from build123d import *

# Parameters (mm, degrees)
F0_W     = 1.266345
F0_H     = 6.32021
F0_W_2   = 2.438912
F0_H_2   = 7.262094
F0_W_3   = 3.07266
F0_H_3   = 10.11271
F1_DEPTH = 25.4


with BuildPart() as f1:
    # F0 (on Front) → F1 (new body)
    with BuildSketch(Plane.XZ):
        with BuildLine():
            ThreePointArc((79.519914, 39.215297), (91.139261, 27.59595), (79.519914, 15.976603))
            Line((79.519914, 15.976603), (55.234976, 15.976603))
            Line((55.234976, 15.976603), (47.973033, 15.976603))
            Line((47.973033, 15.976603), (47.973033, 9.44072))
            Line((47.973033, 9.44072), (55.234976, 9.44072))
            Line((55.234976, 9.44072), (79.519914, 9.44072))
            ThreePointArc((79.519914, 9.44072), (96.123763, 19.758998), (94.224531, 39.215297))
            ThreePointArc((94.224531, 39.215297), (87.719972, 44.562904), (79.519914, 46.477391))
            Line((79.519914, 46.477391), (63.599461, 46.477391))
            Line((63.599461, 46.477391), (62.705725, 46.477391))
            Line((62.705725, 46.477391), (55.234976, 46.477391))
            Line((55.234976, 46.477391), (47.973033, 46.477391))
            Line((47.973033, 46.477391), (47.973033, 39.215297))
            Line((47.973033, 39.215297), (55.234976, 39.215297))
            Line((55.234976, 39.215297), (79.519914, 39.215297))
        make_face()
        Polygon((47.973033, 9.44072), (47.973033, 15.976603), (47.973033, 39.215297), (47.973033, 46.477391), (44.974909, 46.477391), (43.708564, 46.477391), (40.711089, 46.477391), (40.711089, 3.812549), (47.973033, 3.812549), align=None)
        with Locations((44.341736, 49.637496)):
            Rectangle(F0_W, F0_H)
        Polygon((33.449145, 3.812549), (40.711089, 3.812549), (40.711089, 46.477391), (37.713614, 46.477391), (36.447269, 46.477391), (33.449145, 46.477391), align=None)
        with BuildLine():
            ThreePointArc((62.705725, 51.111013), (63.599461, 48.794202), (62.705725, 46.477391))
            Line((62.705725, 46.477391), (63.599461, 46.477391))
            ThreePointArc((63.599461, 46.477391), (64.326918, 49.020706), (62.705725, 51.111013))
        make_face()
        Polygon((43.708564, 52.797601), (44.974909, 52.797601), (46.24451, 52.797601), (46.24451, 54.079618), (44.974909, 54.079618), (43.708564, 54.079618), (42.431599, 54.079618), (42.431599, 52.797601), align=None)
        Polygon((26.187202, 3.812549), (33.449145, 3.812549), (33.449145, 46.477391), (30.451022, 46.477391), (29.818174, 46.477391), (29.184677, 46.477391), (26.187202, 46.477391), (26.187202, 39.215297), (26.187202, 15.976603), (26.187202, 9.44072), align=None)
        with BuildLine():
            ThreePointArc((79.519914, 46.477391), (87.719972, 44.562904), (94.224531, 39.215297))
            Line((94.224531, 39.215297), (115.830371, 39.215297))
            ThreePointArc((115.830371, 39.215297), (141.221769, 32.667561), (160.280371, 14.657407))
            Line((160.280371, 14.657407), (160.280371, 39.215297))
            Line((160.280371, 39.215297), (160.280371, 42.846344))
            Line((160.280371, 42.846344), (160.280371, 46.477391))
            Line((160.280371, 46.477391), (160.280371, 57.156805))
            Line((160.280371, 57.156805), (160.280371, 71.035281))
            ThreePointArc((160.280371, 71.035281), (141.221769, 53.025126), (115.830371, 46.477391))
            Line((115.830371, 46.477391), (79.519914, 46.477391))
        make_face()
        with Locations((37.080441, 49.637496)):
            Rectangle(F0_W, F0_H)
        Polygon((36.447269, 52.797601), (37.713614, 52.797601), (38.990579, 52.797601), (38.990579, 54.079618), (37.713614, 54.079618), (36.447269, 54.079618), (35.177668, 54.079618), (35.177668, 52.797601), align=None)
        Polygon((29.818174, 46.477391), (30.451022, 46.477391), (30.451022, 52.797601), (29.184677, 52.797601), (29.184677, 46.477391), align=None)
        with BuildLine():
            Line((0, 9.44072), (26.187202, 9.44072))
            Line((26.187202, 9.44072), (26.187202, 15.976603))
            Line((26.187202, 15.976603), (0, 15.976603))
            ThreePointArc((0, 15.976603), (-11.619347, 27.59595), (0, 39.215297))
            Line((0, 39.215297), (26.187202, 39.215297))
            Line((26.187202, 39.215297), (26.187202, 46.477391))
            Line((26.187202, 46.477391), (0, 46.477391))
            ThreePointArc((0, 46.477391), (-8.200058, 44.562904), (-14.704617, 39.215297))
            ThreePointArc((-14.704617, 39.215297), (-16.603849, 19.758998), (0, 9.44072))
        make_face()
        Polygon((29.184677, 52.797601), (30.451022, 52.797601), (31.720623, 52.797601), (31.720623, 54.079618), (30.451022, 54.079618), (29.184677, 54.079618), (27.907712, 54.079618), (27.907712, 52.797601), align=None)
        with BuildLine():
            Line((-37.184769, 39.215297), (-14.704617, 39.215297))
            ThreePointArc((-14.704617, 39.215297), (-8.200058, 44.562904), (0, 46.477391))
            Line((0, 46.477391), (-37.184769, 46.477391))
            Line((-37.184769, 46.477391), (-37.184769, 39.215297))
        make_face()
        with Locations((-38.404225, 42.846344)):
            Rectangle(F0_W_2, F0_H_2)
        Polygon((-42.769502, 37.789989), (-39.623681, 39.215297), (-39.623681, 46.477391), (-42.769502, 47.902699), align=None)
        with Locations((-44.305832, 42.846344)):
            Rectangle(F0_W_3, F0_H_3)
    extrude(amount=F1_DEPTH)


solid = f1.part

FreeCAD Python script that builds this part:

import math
import FreeCAD as App
import Part
import Sketcher

V = App.Vector
Q = App.Units.Quantity

doc = App.newDocument("Part")
body = doc.addObject("PartDesign::Body", "Body")

sketch1 = body.newObject("Sketcher::SketchObject", "Sketch")
sketch1.AttachmentSupport = (doc.getObject("XZ_Plane"), [""])
sketch1.MapMode = "FlatFace"
sketch1.addGeometry([
    Part.LineSegment(V(47.973033, 9.44072, 0), V(79.519914, 9.44072, 0)),
    Part.ArcOfCircle(Part.Circle(V(79.519914, 27.959055, 0), V(0, 0, 1), 18.518335), math.radians(-90), math.radians(37.433706)),
    Part.LineSegment(V(94.224531, 39.215297, 0), V(115.830371, 39.215297, 0)),
    Part.ArcOfCircle(Part.Circle(V(115.830369, -13.291101, 0), V(0, 0, 1), 52.506398), math.radians(32.160154), math.radians(89.999997)),
    Part.LineSegment(V(160.280371, 14.657407, 0), V(160.280371, 71.035281, 0)),
    Part.ArcOfCircle(Part.Circle(V(115.830372, 98.983782, 0), V(0, 0, 1), 52.506391), math.radians(-90.000001), math.radians(-32.16015)),
    Part.LineSegment(V(115.830371, 46.477391, 0), V(63.599461, 46.477391, 0)),
    Part.ArcOfCircle(Part.Circle(V(61.454352, 48.466644, 0), V(0, 0, 1), 2.925512), math.radians(-42.841099), math.radians(64.67546)),
    Part.ArcOfCircle(Part.Circle(V(60.149685, 48.794202, 0), V(0, 0, 1), 3.449776), math.radians(-42.189368), math.radians(42.189368)),
    Part.LineSegment(V(62.705725, 46.477391, 0), V(44.974908, 46.477391, 0)),
    Part.LineSegment(V(44.974908, 46.477391, 0), V(44.974908, 52.797601, 0)),
    Part.LineSegment(V(44.974908, 52.797601, 0), V(46.24451, 52.797601, 0)),
    Part.LineSegment(V(46.24451, 52.797601, 0), V(46.24451, 54.079618, 0)),
    Part.LineSegment(V(46.24451, 54.079618, 0), V(42.431599, 54.079618, 0)),
    Part.LineSegment(V(42.431599, 54.079618, 0), V(42.431599, 52.797601, 0)),
    Part.LineSegment(V(42.431599, 52.797601, 0), V(43.708563, 52.797601, 0)),
    Part.LineSegment(V(43.708563, 52.797601, 0), V(43.708563, 46.477391, 0)),
    Part.LineSegment(V(43.708563, 46.477391, 0), V(37.713614, 46.477391, 0)),
    Part.LineSegment(V(37.713614, 46.477391, 0), V(37.713614, 52.797601, 0)),
    Part.LineSegment(V(37.713614, 52.797601, 0), V(38.990579, 52.797601, 0)),
    Part.LineSegment(V(38.990579, 52.797601, 0), V(38.990579, 54.079618, 0)),
    Part.LineSegment(V(38.990579, 54.079618, 0), V(35.177668, 54.079618, 0)),
    Part.LineSegment(V(35.177668, 54.079618, 0), V(35.177668, 52.797601, 0)),
    Part.LineSegment(V(35.177668, 52.797601, 0), V(36.447268, 52.797601, 0)),
    Part.LineSegment(V(36.447268, 52.797601, 0), V(36.447268, 46.477391, 0)),
    Part.LineSegment(V(36.447268, 46.477391, 0), V(30.451022, 46.477391, 0)),
    Part.LineSegment(V(30.451022, 46.477391, 0), V(30.451022, 52.797601, 0)),
    Part.LineSegment(V(30.451022, 52.797601, 0), V(31.720623, 52.797601, 0)),
    Part.LineSegment(V(31.720623, 52.797601, 0), V(31.720623, 54.079618, 0)),
    Part.LineSegment(V(31.720623, 54.079618, 0), V(27.907712, 54.079618, 0)),
    Part.LineSegment(V(27.907712, 54.079618, 0), V(27.907712, 52.797601, 0)),
    Part.LineSegment(V(27.907712, 52.797601, 0), V(29.184677, 52.797601, 0)),
    Part.LineSegment(V(29.184677, 52.797601, 0), V(29.184677, 46.477391, 0)),
    Part.LineSegment(V(29.184677, 46.477391, 0), V(-39.623681, 46.477391, 0)),
    Part.LineSegment(V(-39.623681, 46.477391, 0), V(-42.769502, 47.902699, 0)),
    Part.LineSegment(V(-42.769502, 47.902699, 0), V(-45.842162, 47.902699, 0)),
    Part.LineSegment(V(-45.842162, 47.902699, 0), V(-45.842162, 37.789989, 0)),
    Part.LineSegment(V(-45.842162, 37.789989, 0), V(-42.769502, 37.789989, 0)),
    Part.LineSegment(V(-42.769502, 37.789989, 0), V(-39.623681, 39.215297, 0)),
    Part.LineSegment(V(-39.623681, 39.215297, 0), V(-14.704617, 39.215297, 0)),
    Part.ArcOfCircle(Part.Circle(V(0, 27.959055, 0), V(0, 0, 1), 18.518335), math.radians(142.566294), math.radians(270)),
    Part.LineSegment(V(0, 9.44072, 0), V(26.187202, 9.44072, 0)),
    Part.LineSegment(V(26.187202, 9.44072, 0), V(26.187202, 3.812549, 0)),
    Part.LineSegment(V(26.187202, 3.812549, 0), V(47.973033, 3.812549, 0)),
    Part.LineSegment(V(47.973033, 3.812549, 0), V(47.973033, 9.44072, 0)),
    Part.ArcOfCircle(Part.Circle(V(79.519914, 27.59595, 0), V(0, 0, 1), 11.619347), math.radians(-90), math.radians(90)),
    Part.LineSegment(V(79.519914, 15.976603, 0), V(47.973033, 15.976603, 0)),
    Part.LineSegment(V(47.973033, 15.976603, 0), V(47.973033, 39.215297, 0)),
    Part.LineSegment(V(47.973033, 39.215297, 0), V(79.519914, 39.215297, 0)),
    Part.LineSegment(V(26.187202, 39.215297, 0), V(26.187202, 15.976603, 0)),
    Part.LineSegment(V(26.187202, 15.976603, 0), V(0, 15.976603, 0)),
    Part.ArcOfCircle(Part.Circle(V(0, 27.59595, 0), V(0, 0, 1), 11.619347), math.radians(90), math.radians(270)),
    Part.LineSegment(V(0, 39.215297, 0), V(26.187202, 39.215297, 0)),
], False)
sketch1.addConstraint([
    Sketcher.Constraint("Tangent", 0, 2, 1, 1),
    Sketcher.Constraint("Coincident", 1, 2, 2, 1),
    Sketcher.Constraint("Tangent", 2, 2, 3, 2),
    Sketcher.Constraint("Coincident", 3, 1, 4, 1),
    Sketcher.Constraint("Coincident", 4, 2, 5, 2),
    Sketcher.Constraint("Tangent", 5, 1, 6, 1),
    Sketcher.Constraint("Coincident", 6, 2, 7, 1),
    Sketcher.Constraint("Coincident", 7, 2, 8, 2),
    Sketcher.Constraint("Coincident", 8, 1, 9, 1),
    Sketcher.Constraint("Coincident", 9, 2, 10, 1),
    Sketcher.Constraint("Coincident", 10, 2, 11, 1),
    Sketcher.Constraint("Coincident", 11, 2, 12, 1),
    Sketcher.Constraint("Coincident", 12, 2, 13, 1),
    Sketcher.Constraint("Coincident", 13, 2, 14, 1),
    Sketcher.Constraint("Coincident", 14, 2, 15, 1),
    Sketcher.Constraint("Coincident", 15, 2, 16, 1),
    Sketcher.Constraint("Coincident", 16, 2, 17, 1),
    Sketcher.Constraint("Coincident", 17, 2, 18, 1),
    Sketcher.Constraint("Coincident", 18, 2, 19, 1),
    Sketcher.Constraint("Coincident", 19, 2, 20, 1),
    Sketcher.Constraint("Coincident", 20, 2, 21, 1),
    Sketcher.Constraint("Coincident", 21, 2, 22, 1),
    Sketcher.Constraint("Coincident", 22, 2, 23, 1),
    Sketcher.Constraint("Coincident", 23, 2, 24, 1),
    Sketcher.Constraint("Coincident", 24, 2, 25, 1),
    Sketcher.Constraint("Coincident", 25, 2, 26, 1),
    Sketcher.Constraint("Coincident", 26, 2, 27, 1),
    Sketcher.Constraint("Coincident", 27, 2, 28, 1),
    Sketcher.Constraint("Coincident", 28, 2, 29, 1),
    Sketcher.Constraint("Coincident", 29, 2, 30, 1),
    Sketcher.Constraint("Coincident", 30, 2, 31, 1),
    Sketcher.Constraint("Coincident", 31, 2, 32, 1),
    Sketcher.Constraint("Coincident", 32, 2, 33, 1),
    Sketcher.Constraint("Coincident", 33, 2, 34, 1),
    Sketcher.Constraint("Coincident", 34, 2, 35, 1),
    Sketcher.Constraint("Coincident", 35, 2, 36, 1),
    Sketcher.Constraint("Coincident", 36, 2, 37, 1),
    Sketcher.Constraint("Coincident", 37, 2, 38, 1),
    Sketcher.Constraint("Coincident", 38, 2, 39, 1),
    Sketcher.Constraint("Coincident", 39, 2, 40, 1),
    Sketcher.Constraint("Tangent", 40, 2, 41, 1),
    Sketcher.Constraint("Coincident", 41, 2, 42, 1),
    Sketcher.Constraint("Coincident", 42, 2, 43, 1),
    Sketcher.Constraint("Coincident", 43, 2, 44, 1),
    Sketcher.Constraint("Coincident", 44, 2, 0, 1),
    Sketcher.Constraint("Tangent", 45, 1, 46, 1),
    Sketcher.Constraint("Coincident", 46, 2, 47, 1),
    Sketcher.Constraint("Coincident", 47, 2, 48, 1),
    Sketcher.Constraint("Tangent", 48, 2, 45, 2),
    Sketcher.Constraint("Coincident", 49, 2, 50, 1),
    Sketcher.Constraint("Tangent", 50, 2, 51, 2),
    Sketcher.Constraint("Tangent", 51, 1, 52, 1),
    Sketcher.Constraint("Coincident", 52, 2, 49, 1),
    Sketcher.Constraint("Horizontal", 0),
    Sketcher.Constraint("Horizontal", 2),
    Sketcher.Constraint("Vertical", 4),
    Sketcher.Constraint("Horizontal", 6),
    Sketcher.Constraint("Horizontal", 9),
    Sketcher.Constraint("Vertical", 10),
    Sketcher.Constraint("Horizontal", 11),
    Sketcher.Constraint("Vertical", 12),
    Sketcher.Constraint("Horizontal", 13),
    Sketcher.Constraint("Vertical", 14),
    Sketcher.Constraint("Horizontal", 15),
    Sketcher.Constraint("Vertical", 16),
    Sketcher.Constraint("Horizontal", 17),
    Sketcher.Constraint("Vertical", 18),
    Sketcher.Constraint("Horizontal", 19),
    Sketcher.Constraint("Vertical", 20),
    Sketcher.Constraint("Horizontal", 21),
    Sketcher.Constraint("Vertical", 22),
    Sketcher.Constraint("Horizontal", 23),
    Sketcher.Constraint("Vertical", 24),
    Sketcher.Constraint("Horizontal", 25),
    Sketcher.Constraint("Vertical", 26),
    Sketcher.Constraint("Horizontal", 27),
    Sketcher.Constraint("Vertical", 28),
    Sketcher.Constraint("Horizontal", 29),
    Sketcher.Constraint("Vertical", 30),
    Sketcher.Constraint("Horizontal", 31),
    Sketcher.Constraint("Vertical", 32),
    Sketcher.Constraint("Horizontal", 33),
    Sketcher.Constraint("Horizontal", 35),
    Sketcher.Constraint("Vertical", 36),
    Sketcher.Constraint("Horizontal", 37),
    Sketcher.Constraint("Horizontal", 39),
    Sketcher.Constraint("Horizontal", 41),
    Sketcher.Constraint("Vertical", 42),
    Sketcher.Constraint("Horizontal", 43),
    Sketcher.Constraint("Vertical", 44),
    Sketcher.Constraint("Horizontal", 46),
    Sketcher.Constraint("Vertical", 47),
    Sketcher.Constraint("Horizontal", 48),
    Sketcher.Constraint("Vertical", 49),
    Sketcher.Constraint("Horizontal", 50),
    Sketcher.Constraint("Horizontal", 52),
    Sketcher.Constraint("Equal", 1, 40),
    Sketcher.Constraint("Equal", 45, 51),
    Sketcher.Constraint("PointOnObject", 40, 3, -2),
    Sketcher.Constraint("PointOnObject", 51, 3, -2),
    Sketcher.Constraint("Horizontal", 1, 3, 40, 3),
    Sketcher.Constraint("Horizontal", 45, 3, 51, 3),
    Sketcher.Constraint("Horizontal", 6, 2, 8, 1),
    Sketcher.Constraint("Horizontal", 11, 2, 14, 2),
    Sketcher.Constraint("Horizontal", 9, 2, 16, 2),
    Sketcher.Constraint("Horizontal", 15, 2, 18, 2),
    Sketcher.Constraint("Horizontal", 13, 2, 20, 2),
    Sketcher.Constraint("Horizontal", 19, 2, 22, 2),
    Sketcher.Constraint("Horizontal", 17, 2, 24, 2),
    Sketcher.Constraint("Horizontal", 23, 2, 26, 2),
    Sketcher.Constraint("Horizontal", 21, 2, 28, 2),
    Sketcher.Constraint("Horizontal", 27, 2, 30, 2),
    Sketcher.Constraint("Horizontal", 25, 2, 32, 2),
    Sketcher.Constraint("Horizontal", 2, 2, 38, 2),
    Sketcher.Constraint("Horizontal", 39, 2, 47, 2),
    Sketcher.Constraint("Vertical", 1, 3, 45, 3),
    Sketcher.Constraint("Vertical", 5, 3, 2, 2),
    Sketcher.Constraint("Vertical", 7, 2, 8, 1),
    Sketcher.Constraint("Vertical", 34, 2, 37, 2),
    Sketcher.Constraint("Vertical", 33, 2, 38, 2),
    Sketcher.Constraint("Vertical", 44, 2, 46, 2),
    Sketcher.Constraint("Vertical", 42, 2, 49, 2),
    Sketcher.Constraint("Equal", 15, 19),
    Sketcher.Constraint("Equal", 13, 21),
    Sketcher.Constraint("Equal", 11, 23),
    Sketcher.Constraint("Equal", 23, 27),
    Sketcher.Constraint("Equal", 21, 29),
    Sketcher.Constraint("Equal", 19, 31),
    Sketcher.Constraint("Equal", 34, 38),
    Sketcher.Constraint("DistanceY", -1, 1, 45, 1, Q("0.6290001 in")),
    Sketcher.Constraint("Radius", 5, 52.506391),
    Sketcher.Constraint("DistanceX", 11, 1, 11, 2, 1.269602),
    Sketcher.Constraint("DistanceX", 41, 1, 41, 2, 26.187202),
    Sketcher.Constraint("Radius", 1, 18.518335),
    Sketcher.Constraint("Radius", 3, 52.506398),
    Sketcher.Constraint("Radius", 7, 2.925512),
    Sketcher.Constraint("Radius", 8, 3.449776),
    Sketcher.Constraint("Radius", 45, 11.619347),
    Sketcher.Constraint("DistanceX", 0, 1, 0, 2, 31.546881),
    Sketcher.Constraint("DistanceX", 2, 1, 2, 2, 21.60584),
    Sketcher.Constraint("DistanceX", 6, 2, 6, 1, 52.23091),
    Sketcher.Constraint("DistanceX", 13, 2, 13, 1, 3.812911),
    Sketcher.Constraint("DistanceX", 17, 2, 17, 1, 5.99495),
    Sketcher.Constraint("DistanceX", 33, 2, 33, 1, 68.808358),
    Sketcher.Constraint("DistanceX", 35, 2, 35, 1, 3.07266),
    Sketcher.Constraint("DistanceX", 43, 1, 43, 2, 21.785831),
    Sketcher.Constraint("DistanceY", 10, 1, 10, 2, 6.32021),
    Sketcher.Constraint("DistanceY", 36, 2, 36, 1, 10.11271),
    Sketcher.Constraint("DistanceY", 42, 2, 42, 1, 5.628171),
    Sketcher.Constraint("DistanceY", -1, 1, 10, 2, 52.797601),
    Sketcher.Constraint("DistanceX", -1, 1, 13, 2, 42.431599),
    Sketcher.Constraint("Distance", 34, 3.453649),
    Sketcher.Constraint("DistanceX", 9, 2, 9, 1, 17.730817),
    Sketcher.Constraint("DistanceX", 15, 1, 15, 2, 1.276964),
    Sketcher.Constraint("DistanceX", 25, 2, 25, 1, 5.996247),
    Sketcher.Constraint("DistanceX", 39, 1, 39, 2, 24.919064),
    Sketcher.Constraint("DistanceY", 4, 1, 4, 2, 56.377874),
    Sketcher.Constraint("DistanceY", 12, 1, 12, 2, 1.282017),
    Sketcher.Constraint("DistanceX", -1, 1, 7, 3, 61.454352),
])
pad1 = body.newObject("PartDesign::Pad", "Pad")
pad1.Profile = sketch1
pad1.Length = Q("1 in")

doc.recompute()
